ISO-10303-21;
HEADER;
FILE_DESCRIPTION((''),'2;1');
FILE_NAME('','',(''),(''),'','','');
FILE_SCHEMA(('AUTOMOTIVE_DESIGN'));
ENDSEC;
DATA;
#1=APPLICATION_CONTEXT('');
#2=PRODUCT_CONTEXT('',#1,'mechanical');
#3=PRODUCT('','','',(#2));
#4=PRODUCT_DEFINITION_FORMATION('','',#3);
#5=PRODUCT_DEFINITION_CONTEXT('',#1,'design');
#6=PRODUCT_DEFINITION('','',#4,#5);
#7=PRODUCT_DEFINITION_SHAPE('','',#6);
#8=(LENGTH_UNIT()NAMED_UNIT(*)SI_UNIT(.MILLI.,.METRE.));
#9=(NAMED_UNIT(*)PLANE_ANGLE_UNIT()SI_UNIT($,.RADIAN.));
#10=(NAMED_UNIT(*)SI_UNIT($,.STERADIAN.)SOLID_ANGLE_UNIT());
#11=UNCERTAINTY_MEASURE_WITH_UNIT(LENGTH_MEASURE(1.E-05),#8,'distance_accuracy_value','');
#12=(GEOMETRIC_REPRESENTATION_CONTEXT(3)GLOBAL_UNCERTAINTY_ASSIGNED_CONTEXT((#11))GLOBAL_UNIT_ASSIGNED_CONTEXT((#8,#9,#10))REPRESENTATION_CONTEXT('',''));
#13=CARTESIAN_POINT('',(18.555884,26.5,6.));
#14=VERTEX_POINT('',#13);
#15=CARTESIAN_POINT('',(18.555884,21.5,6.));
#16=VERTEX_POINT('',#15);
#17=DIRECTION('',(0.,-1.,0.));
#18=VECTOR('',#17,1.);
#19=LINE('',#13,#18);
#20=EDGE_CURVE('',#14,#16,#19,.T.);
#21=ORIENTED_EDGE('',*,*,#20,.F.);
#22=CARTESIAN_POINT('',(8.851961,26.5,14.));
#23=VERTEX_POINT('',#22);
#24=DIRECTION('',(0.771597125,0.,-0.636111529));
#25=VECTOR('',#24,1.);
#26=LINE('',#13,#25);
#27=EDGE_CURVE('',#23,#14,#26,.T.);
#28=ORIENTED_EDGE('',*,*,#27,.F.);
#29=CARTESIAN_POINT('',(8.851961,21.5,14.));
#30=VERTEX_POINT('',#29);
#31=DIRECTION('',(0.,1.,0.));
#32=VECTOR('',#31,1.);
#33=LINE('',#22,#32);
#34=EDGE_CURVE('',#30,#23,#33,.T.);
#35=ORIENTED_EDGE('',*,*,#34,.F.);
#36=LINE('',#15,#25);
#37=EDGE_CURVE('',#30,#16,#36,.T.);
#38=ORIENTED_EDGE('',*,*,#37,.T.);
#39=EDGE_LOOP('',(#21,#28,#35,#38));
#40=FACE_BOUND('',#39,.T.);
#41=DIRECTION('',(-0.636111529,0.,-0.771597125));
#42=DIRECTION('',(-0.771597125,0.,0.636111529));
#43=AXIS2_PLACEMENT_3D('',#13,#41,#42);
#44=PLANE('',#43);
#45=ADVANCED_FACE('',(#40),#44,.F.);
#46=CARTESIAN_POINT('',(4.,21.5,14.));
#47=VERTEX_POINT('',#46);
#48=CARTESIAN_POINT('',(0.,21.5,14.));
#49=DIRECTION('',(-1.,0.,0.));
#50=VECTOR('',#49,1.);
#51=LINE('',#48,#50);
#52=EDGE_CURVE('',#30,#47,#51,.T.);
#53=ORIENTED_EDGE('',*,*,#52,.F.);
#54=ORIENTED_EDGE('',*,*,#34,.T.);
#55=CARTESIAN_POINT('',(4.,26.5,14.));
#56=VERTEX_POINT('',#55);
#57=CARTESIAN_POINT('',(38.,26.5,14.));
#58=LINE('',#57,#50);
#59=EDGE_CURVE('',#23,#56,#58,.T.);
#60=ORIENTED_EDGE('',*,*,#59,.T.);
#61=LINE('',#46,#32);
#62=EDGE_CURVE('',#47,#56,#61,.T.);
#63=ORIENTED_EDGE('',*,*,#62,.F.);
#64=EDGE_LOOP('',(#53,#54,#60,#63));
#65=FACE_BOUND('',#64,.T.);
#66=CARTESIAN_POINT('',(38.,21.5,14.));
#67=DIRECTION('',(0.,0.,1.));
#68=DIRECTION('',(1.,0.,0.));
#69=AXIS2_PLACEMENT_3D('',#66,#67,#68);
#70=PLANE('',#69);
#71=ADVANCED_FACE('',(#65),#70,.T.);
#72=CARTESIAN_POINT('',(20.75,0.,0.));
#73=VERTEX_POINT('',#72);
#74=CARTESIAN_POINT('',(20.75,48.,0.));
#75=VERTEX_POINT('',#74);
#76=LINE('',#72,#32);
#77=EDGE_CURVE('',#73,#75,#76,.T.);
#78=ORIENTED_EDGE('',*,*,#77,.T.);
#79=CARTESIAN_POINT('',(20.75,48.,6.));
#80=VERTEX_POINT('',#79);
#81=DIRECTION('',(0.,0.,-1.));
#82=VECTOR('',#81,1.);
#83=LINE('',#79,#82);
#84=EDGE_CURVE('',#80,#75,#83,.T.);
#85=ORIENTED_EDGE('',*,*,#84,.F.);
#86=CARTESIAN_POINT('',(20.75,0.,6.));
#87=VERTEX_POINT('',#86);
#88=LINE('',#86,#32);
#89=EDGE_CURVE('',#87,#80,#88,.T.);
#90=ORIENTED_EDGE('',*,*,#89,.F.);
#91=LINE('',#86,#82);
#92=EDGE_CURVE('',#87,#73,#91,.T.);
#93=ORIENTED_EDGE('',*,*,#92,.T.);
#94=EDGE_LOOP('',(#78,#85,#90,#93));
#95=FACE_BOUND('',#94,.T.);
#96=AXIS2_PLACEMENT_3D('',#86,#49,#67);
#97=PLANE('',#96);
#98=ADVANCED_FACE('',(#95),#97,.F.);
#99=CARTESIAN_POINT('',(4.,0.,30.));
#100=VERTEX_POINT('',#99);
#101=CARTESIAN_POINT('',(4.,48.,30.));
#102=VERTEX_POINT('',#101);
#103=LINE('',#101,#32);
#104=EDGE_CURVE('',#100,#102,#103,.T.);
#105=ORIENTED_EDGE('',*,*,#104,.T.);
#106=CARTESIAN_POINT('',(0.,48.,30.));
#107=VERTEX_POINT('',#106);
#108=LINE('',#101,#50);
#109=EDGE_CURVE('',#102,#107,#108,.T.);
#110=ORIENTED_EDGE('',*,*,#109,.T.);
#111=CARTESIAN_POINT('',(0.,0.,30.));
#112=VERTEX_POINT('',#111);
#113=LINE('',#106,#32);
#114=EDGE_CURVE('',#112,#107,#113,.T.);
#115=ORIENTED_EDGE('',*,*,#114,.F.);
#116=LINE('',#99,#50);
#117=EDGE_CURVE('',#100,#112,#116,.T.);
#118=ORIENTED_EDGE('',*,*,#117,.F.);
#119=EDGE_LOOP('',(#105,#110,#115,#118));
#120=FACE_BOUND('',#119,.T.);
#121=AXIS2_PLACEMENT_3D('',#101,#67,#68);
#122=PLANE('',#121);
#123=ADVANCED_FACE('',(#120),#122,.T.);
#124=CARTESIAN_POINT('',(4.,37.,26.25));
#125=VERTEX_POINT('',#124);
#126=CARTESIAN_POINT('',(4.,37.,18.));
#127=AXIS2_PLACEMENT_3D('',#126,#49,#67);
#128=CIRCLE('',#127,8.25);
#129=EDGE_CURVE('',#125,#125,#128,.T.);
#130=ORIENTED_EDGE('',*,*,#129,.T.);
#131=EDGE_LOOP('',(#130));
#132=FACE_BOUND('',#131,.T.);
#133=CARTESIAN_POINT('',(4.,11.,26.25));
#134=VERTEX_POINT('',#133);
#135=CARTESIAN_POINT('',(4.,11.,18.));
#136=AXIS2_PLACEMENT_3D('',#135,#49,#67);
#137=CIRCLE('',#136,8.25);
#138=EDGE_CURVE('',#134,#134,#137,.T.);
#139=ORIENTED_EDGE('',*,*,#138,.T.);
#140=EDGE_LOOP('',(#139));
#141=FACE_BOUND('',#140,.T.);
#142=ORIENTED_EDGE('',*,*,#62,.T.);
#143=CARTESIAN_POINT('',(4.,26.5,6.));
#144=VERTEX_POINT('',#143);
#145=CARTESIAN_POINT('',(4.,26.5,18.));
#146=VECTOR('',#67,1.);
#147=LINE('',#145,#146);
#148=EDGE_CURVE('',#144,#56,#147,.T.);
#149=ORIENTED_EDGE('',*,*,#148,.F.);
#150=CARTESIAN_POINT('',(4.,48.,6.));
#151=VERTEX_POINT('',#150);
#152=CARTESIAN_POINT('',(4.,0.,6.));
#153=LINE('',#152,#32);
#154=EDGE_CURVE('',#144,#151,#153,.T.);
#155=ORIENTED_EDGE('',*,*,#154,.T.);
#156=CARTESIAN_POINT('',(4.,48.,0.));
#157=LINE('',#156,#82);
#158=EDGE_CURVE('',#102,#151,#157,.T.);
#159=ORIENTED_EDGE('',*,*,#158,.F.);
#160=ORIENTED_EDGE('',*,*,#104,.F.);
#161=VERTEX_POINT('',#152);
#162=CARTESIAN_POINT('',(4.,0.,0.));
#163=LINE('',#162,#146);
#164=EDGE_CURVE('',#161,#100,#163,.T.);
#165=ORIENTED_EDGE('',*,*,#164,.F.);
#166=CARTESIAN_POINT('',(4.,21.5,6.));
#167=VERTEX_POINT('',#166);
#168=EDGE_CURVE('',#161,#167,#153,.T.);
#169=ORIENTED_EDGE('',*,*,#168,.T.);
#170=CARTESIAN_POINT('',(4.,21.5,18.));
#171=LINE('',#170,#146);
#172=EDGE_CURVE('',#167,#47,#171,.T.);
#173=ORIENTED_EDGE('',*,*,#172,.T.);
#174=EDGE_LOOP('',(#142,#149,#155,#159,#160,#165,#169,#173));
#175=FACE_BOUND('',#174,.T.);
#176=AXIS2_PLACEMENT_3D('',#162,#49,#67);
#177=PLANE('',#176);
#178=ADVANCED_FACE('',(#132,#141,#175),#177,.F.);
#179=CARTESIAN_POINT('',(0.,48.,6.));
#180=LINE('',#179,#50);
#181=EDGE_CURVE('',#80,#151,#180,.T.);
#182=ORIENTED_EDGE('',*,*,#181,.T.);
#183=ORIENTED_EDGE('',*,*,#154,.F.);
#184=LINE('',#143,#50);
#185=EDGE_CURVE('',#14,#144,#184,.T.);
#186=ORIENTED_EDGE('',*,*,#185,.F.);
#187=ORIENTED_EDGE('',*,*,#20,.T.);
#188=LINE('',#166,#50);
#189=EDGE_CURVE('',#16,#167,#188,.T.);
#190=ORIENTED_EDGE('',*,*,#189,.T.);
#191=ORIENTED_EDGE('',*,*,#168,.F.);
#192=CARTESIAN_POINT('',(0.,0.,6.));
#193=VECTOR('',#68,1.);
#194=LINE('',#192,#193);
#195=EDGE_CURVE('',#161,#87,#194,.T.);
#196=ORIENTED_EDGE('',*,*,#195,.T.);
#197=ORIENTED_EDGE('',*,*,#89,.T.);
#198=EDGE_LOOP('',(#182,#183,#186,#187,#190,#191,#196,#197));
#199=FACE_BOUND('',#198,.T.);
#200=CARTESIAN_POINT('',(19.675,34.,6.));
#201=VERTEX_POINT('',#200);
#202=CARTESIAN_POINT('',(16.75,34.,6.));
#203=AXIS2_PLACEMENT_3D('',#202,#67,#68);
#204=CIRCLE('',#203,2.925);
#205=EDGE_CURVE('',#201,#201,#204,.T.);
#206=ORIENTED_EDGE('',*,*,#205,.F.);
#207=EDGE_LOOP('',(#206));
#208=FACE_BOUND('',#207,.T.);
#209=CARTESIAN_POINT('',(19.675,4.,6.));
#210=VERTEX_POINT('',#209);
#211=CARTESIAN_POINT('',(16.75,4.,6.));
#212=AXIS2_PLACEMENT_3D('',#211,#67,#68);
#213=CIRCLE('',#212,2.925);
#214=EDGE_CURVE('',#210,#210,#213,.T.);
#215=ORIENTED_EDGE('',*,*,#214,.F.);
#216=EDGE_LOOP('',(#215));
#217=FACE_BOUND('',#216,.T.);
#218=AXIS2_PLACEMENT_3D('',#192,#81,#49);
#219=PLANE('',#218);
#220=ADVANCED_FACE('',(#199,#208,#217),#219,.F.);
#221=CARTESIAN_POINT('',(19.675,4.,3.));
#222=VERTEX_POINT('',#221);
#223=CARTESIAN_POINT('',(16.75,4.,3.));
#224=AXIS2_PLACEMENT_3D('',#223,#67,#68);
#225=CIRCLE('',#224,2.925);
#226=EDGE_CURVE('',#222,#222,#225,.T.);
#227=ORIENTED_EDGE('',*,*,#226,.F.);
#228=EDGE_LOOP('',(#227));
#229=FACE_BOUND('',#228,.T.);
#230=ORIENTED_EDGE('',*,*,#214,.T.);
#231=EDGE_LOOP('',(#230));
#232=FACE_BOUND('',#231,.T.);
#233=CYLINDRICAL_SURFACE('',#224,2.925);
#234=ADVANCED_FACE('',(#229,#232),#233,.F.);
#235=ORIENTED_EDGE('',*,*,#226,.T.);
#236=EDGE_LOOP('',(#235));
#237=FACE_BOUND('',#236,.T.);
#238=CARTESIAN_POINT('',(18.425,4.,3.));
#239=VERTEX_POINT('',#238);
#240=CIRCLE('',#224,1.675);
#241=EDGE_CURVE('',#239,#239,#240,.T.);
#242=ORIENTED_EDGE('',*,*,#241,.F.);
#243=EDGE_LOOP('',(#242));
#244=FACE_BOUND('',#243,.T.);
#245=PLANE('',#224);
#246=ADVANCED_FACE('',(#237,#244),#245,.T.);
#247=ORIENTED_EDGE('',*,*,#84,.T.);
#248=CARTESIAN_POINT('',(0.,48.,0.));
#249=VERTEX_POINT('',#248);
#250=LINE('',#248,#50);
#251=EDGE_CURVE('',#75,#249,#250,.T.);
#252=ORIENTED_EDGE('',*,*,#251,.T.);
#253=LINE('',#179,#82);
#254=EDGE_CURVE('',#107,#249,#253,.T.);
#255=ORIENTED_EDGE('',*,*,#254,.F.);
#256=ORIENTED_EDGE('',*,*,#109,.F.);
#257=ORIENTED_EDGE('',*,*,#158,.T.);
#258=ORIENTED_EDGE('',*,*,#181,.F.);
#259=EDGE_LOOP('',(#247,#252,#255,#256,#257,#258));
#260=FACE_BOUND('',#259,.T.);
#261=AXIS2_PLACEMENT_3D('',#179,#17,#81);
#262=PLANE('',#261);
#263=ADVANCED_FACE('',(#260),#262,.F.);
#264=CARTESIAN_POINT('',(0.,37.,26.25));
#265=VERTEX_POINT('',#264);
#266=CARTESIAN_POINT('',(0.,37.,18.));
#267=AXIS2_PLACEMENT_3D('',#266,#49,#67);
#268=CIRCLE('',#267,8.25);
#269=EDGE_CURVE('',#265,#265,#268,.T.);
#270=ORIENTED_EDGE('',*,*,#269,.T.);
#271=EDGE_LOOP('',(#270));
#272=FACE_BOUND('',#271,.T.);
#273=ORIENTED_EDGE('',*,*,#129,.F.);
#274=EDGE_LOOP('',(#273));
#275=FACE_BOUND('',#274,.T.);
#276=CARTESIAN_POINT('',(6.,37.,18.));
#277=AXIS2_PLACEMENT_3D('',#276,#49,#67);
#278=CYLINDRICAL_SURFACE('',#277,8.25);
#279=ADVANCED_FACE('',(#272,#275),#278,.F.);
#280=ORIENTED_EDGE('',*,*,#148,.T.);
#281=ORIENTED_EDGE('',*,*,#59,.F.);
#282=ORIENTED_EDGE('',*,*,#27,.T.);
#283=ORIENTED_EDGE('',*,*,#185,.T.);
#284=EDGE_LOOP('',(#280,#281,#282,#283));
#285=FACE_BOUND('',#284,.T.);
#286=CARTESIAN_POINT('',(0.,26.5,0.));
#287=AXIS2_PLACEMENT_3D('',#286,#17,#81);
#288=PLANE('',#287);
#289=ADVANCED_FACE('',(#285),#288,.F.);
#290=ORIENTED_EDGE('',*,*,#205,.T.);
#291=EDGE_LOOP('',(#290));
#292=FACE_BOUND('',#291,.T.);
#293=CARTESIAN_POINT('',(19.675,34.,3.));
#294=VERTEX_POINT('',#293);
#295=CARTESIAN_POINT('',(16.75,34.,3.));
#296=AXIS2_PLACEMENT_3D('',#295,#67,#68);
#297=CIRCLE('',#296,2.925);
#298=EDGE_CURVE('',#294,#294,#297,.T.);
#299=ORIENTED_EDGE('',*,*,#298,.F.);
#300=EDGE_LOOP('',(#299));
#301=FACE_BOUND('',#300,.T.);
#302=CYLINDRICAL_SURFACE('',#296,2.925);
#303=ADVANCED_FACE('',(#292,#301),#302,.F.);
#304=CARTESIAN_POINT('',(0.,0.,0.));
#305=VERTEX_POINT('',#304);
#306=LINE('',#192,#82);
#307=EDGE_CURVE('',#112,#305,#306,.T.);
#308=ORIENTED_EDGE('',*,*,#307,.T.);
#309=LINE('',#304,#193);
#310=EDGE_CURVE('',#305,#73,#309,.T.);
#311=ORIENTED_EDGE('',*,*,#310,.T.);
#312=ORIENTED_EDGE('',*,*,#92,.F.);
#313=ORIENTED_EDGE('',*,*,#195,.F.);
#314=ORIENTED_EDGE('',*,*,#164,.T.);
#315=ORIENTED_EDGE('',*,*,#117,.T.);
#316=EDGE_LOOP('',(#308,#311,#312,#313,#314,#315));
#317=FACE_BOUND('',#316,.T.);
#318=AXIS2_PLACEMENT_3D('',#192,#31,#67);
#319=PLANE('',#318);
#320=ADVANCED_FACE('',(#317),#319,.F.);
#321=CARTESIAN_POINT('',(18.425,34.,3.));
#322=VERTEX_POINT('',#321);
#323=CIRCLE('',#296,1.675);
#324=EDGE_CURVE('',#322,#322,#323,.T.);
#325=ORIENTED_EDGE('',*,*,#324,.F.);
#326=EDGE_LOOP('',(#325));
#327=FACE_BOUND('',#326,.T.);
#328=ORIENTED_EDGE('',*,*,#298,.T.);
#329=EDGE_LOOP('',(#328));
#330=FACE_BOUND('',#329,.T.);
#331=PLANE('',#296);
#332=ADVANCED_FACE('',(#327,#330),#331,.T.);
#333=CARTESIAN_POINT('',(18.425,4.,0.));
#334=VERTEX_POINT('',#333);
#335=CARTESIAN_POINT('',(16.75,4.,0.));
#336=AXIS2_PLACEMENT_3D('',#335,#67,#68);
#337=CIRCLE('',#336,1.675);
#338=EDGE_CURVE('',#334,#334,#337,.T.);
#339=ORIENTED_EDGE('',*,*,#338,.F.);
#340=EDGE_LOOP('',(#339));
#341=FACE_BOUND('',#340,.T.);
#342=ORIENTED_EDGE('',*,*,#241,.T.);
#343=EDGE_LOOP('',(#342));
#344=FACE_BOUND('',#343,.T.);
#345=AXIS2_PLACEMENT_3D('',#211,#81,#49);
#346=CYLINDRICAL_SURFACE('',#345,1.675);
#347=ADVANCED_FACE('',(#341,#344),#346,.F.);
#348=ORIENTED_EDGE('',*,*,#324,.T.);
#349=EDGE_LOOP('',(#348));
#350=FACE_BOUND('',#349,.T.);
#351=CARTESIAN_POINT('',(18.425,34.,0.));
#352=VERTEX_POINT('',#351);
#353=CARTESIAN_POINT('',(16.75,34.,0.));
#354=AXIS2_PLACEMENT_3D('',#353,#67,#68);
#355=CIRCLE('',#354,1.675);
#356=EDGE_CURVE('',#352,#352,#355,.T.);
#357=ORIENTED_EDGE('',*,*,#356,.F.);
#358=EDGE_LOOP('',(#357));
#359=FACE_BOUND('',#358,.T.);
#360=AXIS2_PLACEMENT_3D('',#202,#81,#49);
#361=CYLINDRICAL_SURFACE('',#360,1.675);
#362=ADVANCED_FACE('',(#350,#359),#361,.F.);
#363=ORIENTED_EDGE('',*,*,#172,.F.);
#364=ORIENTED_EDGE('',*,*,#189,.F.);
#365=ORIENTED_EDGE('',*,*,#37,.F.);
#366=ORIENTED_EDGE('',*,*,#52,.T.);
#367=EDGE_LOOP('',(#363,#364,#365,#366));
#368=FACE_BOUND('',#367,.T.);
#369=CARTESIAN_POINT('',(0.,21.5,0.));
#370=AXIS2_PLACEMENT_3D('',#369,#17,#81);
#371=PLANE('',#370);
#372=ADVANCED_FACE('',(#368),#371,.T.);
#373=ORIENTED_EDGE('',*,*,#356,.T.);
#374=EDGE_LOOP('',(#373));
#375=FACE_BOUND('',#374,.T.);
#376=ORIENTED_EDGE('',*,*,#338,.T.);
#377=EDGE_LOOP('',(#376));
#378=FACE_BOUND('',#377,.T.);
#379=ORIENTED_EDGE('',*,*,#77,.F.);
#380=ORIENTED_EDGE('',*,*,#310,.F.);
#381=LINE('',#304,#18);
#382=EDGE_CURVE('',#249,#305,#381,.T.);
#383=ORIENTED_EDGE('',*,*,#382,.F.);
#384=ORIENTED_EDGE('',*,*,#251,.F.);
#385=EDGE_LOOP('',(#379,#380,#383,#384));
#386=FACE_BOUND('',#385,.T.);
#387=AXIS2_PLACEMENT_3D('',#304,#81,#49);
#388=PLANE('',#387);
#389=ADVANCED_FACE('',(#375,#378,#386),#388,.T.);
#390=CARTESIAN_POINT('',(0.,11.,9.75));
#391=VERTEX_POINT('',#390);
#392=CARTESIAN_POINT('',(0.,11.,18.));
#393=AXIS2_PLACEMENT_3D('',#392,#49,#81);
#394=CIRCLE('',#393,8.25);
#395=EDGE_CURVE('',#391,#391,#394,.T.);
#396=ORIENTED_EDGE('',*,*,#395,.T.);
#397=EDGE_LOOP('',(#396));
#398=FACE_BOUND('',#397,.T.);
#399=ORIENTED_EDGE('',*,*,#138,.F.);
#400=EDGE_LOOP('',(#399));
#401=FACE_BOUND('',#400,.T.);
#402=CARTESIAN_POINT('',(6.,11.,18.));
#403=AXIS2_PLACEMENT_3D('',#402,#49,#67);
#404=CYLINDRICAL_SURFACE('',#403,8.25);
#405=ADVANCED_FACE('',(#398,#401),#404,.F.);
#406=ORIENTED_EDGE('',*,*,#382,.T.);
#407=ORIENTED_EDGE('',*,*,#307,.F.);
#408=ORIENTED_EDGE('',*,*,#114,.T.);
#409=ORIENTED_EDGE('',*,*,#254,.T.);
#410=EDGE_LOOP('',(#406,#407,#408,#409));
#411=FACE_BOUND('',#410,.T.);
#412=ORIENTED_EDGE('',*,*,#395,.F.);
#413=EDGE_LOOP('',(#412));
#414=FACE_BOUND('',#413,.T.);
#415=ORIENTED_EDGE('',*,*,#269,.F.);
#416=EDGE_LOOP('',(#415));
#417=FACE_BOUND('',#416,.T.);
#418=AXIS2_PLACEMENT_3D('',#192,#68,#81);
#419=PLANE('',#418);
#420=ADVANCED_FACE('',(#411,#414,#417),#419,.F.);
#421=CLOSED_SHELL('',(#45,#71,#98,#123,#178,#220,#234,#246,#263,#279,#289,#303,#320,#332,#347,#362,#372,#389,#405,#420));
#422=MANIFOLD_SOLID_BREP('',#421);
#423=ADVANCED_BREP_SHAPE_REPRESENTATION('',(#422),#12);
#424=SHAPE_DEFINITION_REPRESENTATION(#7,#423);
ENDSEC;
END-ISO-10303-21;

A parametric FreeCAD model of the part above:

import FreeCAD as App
import Part
import Sketcher

doc = App.newDocument("Part")
body = doc.addObject("PartDesign::Body", "Body")

# Sketch on XY plane
sketch1 = doc.addObject("Sketcher::SketchObject", "Sketch")
body.addObject(sketch1)
sketch1.AttachmentSupport = (doc.XY_Plane, [""])
sketch1.MapMode = "FlatFace"
sketch1.addGeometry([
    Part.LineSegment(App.Vector(0, 48, 0), App.Vector(0, 0, 0)),  # 0
    Part.LineSegment(App.Vector(0, 0, 0), App.Vector(20.8, 0, 0)),  # 1
    Part.LineSegment(App.Vector(20.8, 0, 0), App.Vector(20.8, 48, 0)),  # 2
    Part.LineSegment(App.Vector(20.8, 48, 0), App.Vector(0, 48, 0)),  # 3
    Part.Circle(App.Vector(16.8, 4, 0), App.Vector(0, 0, 1), 1.7),  # 4
    Part.Circle(App.Vector(16.8, 34, 0), App.Vector(0, 0, 1), 1.7),  # 5
], False)
sketch1.addConstraint([
    Sketcher.Constraint("Coincident", 0, 2, 1, 1),
    Sketcher.Constraint("Coincident", 1, 2, 2, 1),
    Sketcher.Constraint("Coincident", 2, 2, 3, 1),
    Sketcher.Constraint("Coincident", 3, 2, 0, 1),
    Sketcher.Constraint("Vertical", 0),
    Sketcher.Constraint("Horizontal", 1),
    Sketcher.Constraint("Vertical", 2),
    Sketcher.Constraint("Horizontal", 3),
    Sketcher.Constraint("Coincident", 0, 2, -1, 1),
    Sketcher.Constraint("Equal", 4, 5),
    Sketcher.Constraint("Vertical", 4, 3, 5, 3),
    Sketcher.Constraint("Diameter", 4, 3.35),
    Sketcher.Constraint("DistanceY", 0, 2, 0, 1, 48.0),
    Sketcher.Constraint("DistanceY", -1, 1, 4, 3, 4.0),
    Sketcher.Constraint("DistanceY", -1, 1, 5, 3, 34.0),
    Sketcher.Constraint("DistanceX", 4, 3, 1, 2, 4.0),
    Sketcher.Constraint("DistanceX", 1, 1, 1, 2, 20.75),
])
pad1 = doc.addObject("PartDesign::Pad", "Pad")
body.addObject(pad1)
pad1.Profile = sketch1
pad1.Length = 6

# Sketch on YZ plane
sketch2 = doc.addObject("Sketcher::SketchObject", "Sketch001")
body.addObject(sketch2)
sketch2.AttachmentSupport = (doc.YZ_Plane, [""])
sketch2.MapMode = "FlatFace"
sketch2.addGeometry([
    Part.LineSegment(App.Vector(48, 0, 0), App.Vector(0, 0, 0)),
    Part.LineSegment(App.Vector(0, 0, 0), App.Vector(0, 30, 0)),
    Part.LineSegment(App.Vector(0, 30, 0), App.Vector(48, 30, 0)),
    Part.LineSegment(App.Vector(48, 30, 0), App.Vector(48, 0, 0)),
], False)
sketch2.addConstraint([
    Sketcher.Constraint("Coincident", 0, 2, 1, 1),
    Sketcher.Constraint("Coincident", 1, 2, 2, 1),
    Sketcher.Constraint("Coincident", 2, 2, 3, 1),
    Sketcher.Constraint("Coincident", 3, 2, 0, 1),
    Sketcher.Constraint("Horizontal", 0),
    Sketcher.Constraint("Vertical", 1),
    Sketcher.Constraint("Horizontal", 2),
    Sketcher.Constraint("Vertical", 3),
    Sketcher.Constraint("Coincident", 0, 2, -1, 1),
    Sketcher.Constraint("DistanceX", 0, 2, 0, 1, 48.0),
    Sketcher.Constraint("DistanceY", 1, 1, 1, 2, 30.0),
])
pad2 = doc.addObject("PartDesign::Pad", "Pad001")
body.addObject(pad2)
pad2.Profile = sketch2
pad2.Length = 4

# Sketch on YZ plane
sketch3 = doc.addObject("Sketcher::SketchObject", "Sketch002")
body.addObject(sketch3)
sketch3.AttachmentSupport = (doc.YZ_Plane, [""])
sketch3.MapMode = "FlatFace"
sketch3.addGeometry([
    Part.Circle(App.Vector(37, 18, 0), App.Vector(0, 0, 1), 8),
    Part.Circle(App.Vector(11, 18, 0), App.Vector(0, 0, 1), 8),
], False)
sketch3.addConstraint([
    Sketcher.Constraint("Equal", 0, 1),
    Sketcher.Constraint("Horizontal", 0, 3, 1, 3),
    Sketcher.Constraint("Diameter", 0, 16.5),
    Sketcher.Constraint("DistanceX", -1, 1, 0, 3, 37.0),
    Sketcher.Constraint("DistanceY", -1, 1, 0, 3, 18.0),
    Sketcher.Constraint("DistanceX", -1, 1, 1, 3, 11.0),
])
pocket1 = doc.addObject("PartDesign::Pocket", "Pocket")
body.addObject(pocket1)
pocket1.Profile = sketch3
pocket1.Length = 6
pocket1.Reversed = True

# Sketch on XZ plane
sketch4 = doc.addObject("Sketcher::SketchObject", "Sketch003")
body.addObject(sketch4)
sketch4.AttachmentSupport = (doc.XZ_Plane, [""])
sketch4.MapMode = "FlatFace"
sketch4.AttachmentOffset = App.Placement(App.Vector(0, 0, -21.5), App.Rotation())
sketch4.addGeometry([
    Part.LineSegment(App.Vector(4, 6, 0), App.Vector(4, 18, 0)),
    Part.LineSegment(App.Vector(4, 18, 0), App.Vector(19, 6, 0)),
    Part.LineSegment(App.Vector(19, 6, 0), App.Vector(4, 6, 0)),
], False)
sketch4.addConstraint([
    Sketcher.Constraint("Coincident", 0, 2, 1, 1),
    Sketcher.Constraint("Coincident", 1, 2, 2, 1),
    Sketcher.Constraint("Coincident", 2, 2, 0, 1),
    Sketcher.Constraint("Vertical", 0),
    Sketcher.Constraint("Horizontal", 2),
    Sketcher.Constraint("DistanceY", 0, 1, 0, 2, 12.0),
    Sketcher.Constraint("DistanceX", -1, 1, 0, 2, 4.0),
    Sketcher.Constraint("DistanceY", -1, 1, 0, 2, 18.0),
    Sketcher.Constraint("DistanceX", 2, 2, 2, 1, 14.555884),
])
pad3 = doc.addObject("PartDesign::Pad", "Pad002")
body.addObject(pad3)
pad3.Profile = sketch4
pad3.Length = 5
pad3.Reversed = True

# Sketch on XY plane
sketch5 = doc.addObject("Sketcher::SketchObject", "Sketch004")
body.addObject(sketch5)
sketch5.AttachmentSupport = (doc.XY_Plane, [""])
sketch5.MapMode = "FlatFace"
sketch5.AttachmentOffset = App.Placement(App.Vector(0, 0, 6), App.Rotation())
sketch5.addGeometry([
    Part.Circle(App.Vector(16.8, 34, 0), App.Vector(0, 0, 1), 2.9),
    Part.Circle(App.Vector(16.8, 4, 0), App.Vector(0, 0, 1), 2.9),
], False)
sketch5.addConstraint([
    Sketcher.Constraint("Equal", 0, 1),
    Sketcher.Constraint("Vertical", 0, 3, 1, 3),
    Sketcher.Constraint("Diameter", 0, 5.85),
    Sketcher.Constraint("DistanceY", -1, 1, 0, 3, 34.0),
    Sketcher.Constraint("DistanceY", -1, 1, 1, 3, 4.0),
    Sketcher.Constraint("DistanceX", -1, 1, 0, 3, 16.75),
])
pocket2 = doc.addObject("PartDesign::Pocket", "Pocket001")
body.addObject(pocket2)
pocket2.Profile = sketch5
pocket2.Length = 3

# Sketch on YZ plane
sketch6 = doc.addObject("Sketcher::SketchObject", "Sketch005")
body.addObject(sketch6)
sketch6.AttachmentSupport = (doc.YZ_Plane, [""])
sketch6.MapMode = "FlatFace"
sketch6.AttachmentOffset = App.Placement(App.Vector(0, 0, 4), App.Rotation())
sketch6.addGeometry([
    Part.LineSegment(App.Vector(26.5, 18, 0), App.Vector(21.5, 18, 0)),
    Part.LineSegment(App.Vector(21.5, 18, 0), App.Vector(21.5, 14, 0)),
    Part.LineSegment(App.Vector(21.5, 14, 0), App.Vector(26.5, 14, 0)),
    Part.LineSegment(App.Vector(26.5, 14, 0), App.Vector(26.5, 18, 0)),
], False)
sketch6.addConstraint([
    Sketcher.Constraint("Coincident", 0, 2, 1, 1),
    Sketcher.Constraint("Coincident", 1, 2, 2, 1),
    Sketcher.Constraint("Coincident", 2, 2, 3, 1),
    Sketcher.Constraint("Coincident", 3, 2, 0, 1),
    Sketcher.Constraint("Horizontal", 0),
    Sketcher.Constraint("Vertical", 1),
    Sketcher.Constraint("Horizontal", 2),
    Sketcher.Constraint("Vertical", 3),
    Sketcher.Constraint("DistanceX", 0, 2, 0, 1, 5.0),
    Sketcher.Constraint("DistanceY", 1, 2, 1, 1, 4.0),
    Sketcher.Constraint("DistanceY", -1, 1, 0, 2, 18.0),
    Sketcher.Constraint("DistanceX", -1, 1, 0, 2, 21.5),
])
pocket3 = doc.addObject("PartDesign::Pocket", "Pocket002")
body.addObject(pocket3)
pocket3.Profile = sketch6
pocket3.Length = 34
pocket3.Reversed = True

doc.recompute()
